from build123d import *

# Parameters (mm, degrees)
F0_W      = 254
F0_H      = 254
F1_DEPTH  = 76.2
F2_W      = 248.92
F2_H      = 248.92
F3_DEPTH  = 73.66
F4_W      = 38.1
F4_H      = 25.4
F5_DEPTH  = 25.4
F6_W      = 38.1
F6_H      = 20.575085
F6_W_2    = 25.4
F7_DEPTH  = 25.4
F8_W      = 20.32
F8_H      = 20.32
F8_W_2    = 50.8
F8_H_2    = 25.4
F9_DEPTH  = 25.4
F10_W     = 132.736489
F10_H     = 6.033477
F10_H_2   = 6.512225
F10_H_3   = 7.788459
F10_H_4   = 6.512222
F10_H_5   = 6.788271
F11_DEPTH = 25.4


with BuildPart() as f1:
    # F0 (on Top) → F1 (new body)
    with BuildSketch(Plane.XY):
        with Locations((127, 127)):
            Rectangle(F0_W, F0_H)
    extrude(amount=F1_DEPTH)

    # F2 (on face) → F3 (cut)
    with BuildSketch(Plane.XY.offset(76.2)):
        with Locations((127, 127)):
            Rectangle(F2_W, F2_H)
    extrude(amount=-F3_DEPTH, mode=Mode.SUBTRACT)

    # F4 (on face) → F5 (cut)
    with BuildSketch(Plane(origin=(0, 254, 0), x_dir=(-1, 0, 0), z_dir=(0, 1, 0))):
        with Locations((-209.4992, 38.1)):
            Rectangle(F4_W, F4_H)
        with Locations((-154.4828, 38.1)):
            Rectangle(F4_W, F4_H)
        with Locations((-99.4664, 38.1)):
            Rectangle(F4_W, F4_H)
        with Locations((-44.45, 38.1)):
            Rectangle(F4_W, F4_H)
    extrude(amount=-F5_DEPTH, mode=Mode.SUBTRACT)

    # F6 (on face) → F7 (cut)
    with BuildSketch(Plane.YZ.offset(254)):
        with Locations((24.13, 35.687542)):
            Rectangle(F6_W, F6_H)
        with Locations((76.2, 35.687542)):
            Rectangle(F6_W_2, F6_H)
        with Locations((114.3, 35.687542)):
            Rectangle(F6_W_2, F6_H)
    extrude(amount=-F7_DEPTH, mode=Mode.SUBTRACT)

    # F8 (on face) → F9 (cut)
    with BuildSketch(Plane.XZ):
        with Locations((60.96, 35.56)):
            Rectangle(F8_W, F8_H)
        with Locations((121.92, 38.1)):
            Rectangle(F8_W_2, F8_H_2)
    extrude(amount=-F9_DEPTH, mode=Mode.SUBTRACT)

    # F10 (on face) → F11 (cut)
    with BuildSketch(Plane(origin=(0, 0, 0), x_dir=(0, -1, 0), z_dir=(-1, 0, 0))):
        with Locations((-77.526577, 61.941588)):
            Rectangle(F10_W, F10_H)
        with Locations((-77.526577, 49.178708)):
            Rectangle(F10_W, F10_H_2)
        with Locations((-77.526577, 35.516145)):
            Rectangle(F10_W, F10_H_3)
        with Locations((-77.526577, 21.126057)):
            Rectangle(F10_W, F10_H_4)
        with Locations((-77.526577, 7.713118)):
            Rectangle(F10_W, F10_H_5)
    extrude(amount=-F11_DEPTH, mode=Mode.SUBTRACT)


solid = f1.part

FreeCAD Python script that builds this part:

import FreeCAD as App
import Part
import Sketcher
Q = App.Units.Quantity

doc = App.newDocument("Part")
body = doc.addObject("PartDesign::Body", "Body")

sketch1 = body.newObject("Sketcher::SketchObject", "Sketch")
sketch1.AttachmentSupport = (doc.getObject("XY_Plane"), [""])
sketch1.MapMode = "FlatFace"
sketch1.addGeometry([
    Part.LineSegment(App.Vector(0, 254, 0), App.Vector(0, 0, 0)),
    Part.LineSegment(App.Vector(0, 0, 0), App.Vector(254, 0, 0)),
    Part.LineSegment(App.Vector(254, 0, 0), App.Vector(254, 254, 0)),
    Part.LineSegment(App.Vector(254, 254, 0), App.Vector(0, 254, 0)),
], False)
sketch1.addConstraint([
    Sketcher.Constraint("Coincident", 0, 2, 1, 1),
    Sketcher.Constraint("Coincident", 1, 2, 2, 1),
    Sketcher.Constraint("Coincident", 2, 2, 3, 1),
    Sketcher.Constraint("Coincident", 3, 2, 0, 1),
    Sketcher.Constraint("Vertical", 0),
    Sketcher.Constraint("Horizontal", 1),
    Sketcher.Constraint("Vertical", 2),
    Sketcher.Constraint("Horizontal", 3),
    Sketcher.Constraint("Coincident", 0, 2, -1, 1),
    Sketcher.Constraint("Equal", 3, 0),
    Sketcher.Constraint("DistanceX", 1, 1, 1, 2, Q("10 in")),
])
pad1 = body.newObject("PartDesign::Pad", "Pad")
pad1.Profile = sketch1
pad1.Length = Q("3 in")

sketch2 = body.newObject("Sketcher::SketchObject", "Sketch001")
sketch2.AttachmentSupport = (doc.getObject("XY_Plane"), [""])
sketch2.MapMode = "FlatFace"
sketch2.AttachmentOffset = App.Placement(App.Vector(0, 0, 3 * 25.4), App.Rotation())
sketch2.addGeometry([
    Part.LineSegment(App.Vector(3, 251, 0), App.Vector(3, 3, 0)),
    Part.LineSegment(App.Vector(3, 3, 0), App.Vector(251, 3, 0)),
    Part.LineSegment(App.Vector(251, 3, 0), App.Vector(251, 251, 0)),
    Part.LineSegment(App.Vector(251, 251, 0), App.Vector(3, 251, 0)),
], False)
sketch2.addConstraint([
    Sketcher.Constraint("Coincident", 0, 2, 1, 1),
    Sketcher.Constraint("Coincident", 1, 2, 2, 1),
    Sketcher.Constraint("Coincident", 2, 2, 3, 1),
    Sketcher.Constraint("Coincident", 3, 2, 0, 1),
    Sketcher.Constraint("Vertical", 0),
    Sketcher.Constraint("Horizontal", 1),
    Sketcher.Constraint("Vertical", 2),
    Sketcher.Constraint("Horizontal", 3),
    Sketcher.Constraint("Equal", 3, 0),
    Sketcher.Constraint("DistanceX", 1, 1, 1, 2, Q("9.8 in")),
    Sketcher.Constraint("DistanceX", -1, 1, 0, 2, Q("0.1 in")),
    Sketcher.Constraint("DistanceY", -1, 1, 0, 2, Q("0.1 in")),
])
pocket1 = body.newObject("PartDesign::Pocket", "Pocket")
pocket1.Profile = sketch2
pocket1.Length = Q("2.9 in")

sketch3 = body.newObject("Sketcher::SketchObject", "Sketch002")
sketch3.AttachmentSupport = (doc.getObject("XZ_Plane"), [""])
sketch3.MapMode = "FlatFace"
sketch3.AttachmentOffset = App.Placement(App.Vector(0, 0, -10 * 25.4), App.Rotation())
sketch3.addGeometry([
    Part.LineSegment(App.Vector(229, 51, 0), App.Vector(229, 25, 0)),
    Part.LineSegment(App.Vector(229, 25, 0), App.Vector(190, 25, 0)),
    Part.LineSegment(App.Vector(190, 25, 0), App.Vector(190, 51, 0)),
    Part.LineSegment(App.Vector(190, 51, 0), App.Vector(229, 51, 0)),
    Part.LineSegment(App.Vector(174, 51, 0), App.Vector(174, 25, 0)),
    Part.LineSegment(App.Vector(174, 25, 0), App.Vector(135, 25, 0)),
    Part.LineSegment(App.Vector(135, 25, 0), App.Vector(135, 51, 0)),
    Part.LineSegment(App.Vector(135, 51, 0), App.Vector(174, 51, 0)),
    Part.LineSegment(App.Vector(119, 51, 0), App.Vector(119, 25, 0)),
    Part.LineSegment(App.Vector(119, 25, 0), App.Vector(80, 25, 0)),
    Part.LineSegment(App.Vector(80, 25, 0), App.Vector(80, 51, 0)),
    Part.LineSegment(App.Vector(80, 51, 0), App.Vector(119, 51, 0)),
    Part.LineSegment(App.Vector(64, 51, 0), App.Vector(64, 25, 0)),
    Part.LineSegment(App.Vector(64, 25, 0), App.Vector(25, 25, 0)),
    Part.LineSegment(App.Vector(25, 25, 0), App.Vector(25, 51, 0)),
    Part.LineSegment(App.Vector(25, 51, 0), App.Vector(64, 51, 0)),
], False)
sketch3.addConstraint([
    Sketcher.Constraint("Coincident", 0, 2, 1, 1),
    Sketcher.Constraint("Coincident", 1, 2, 2, 1),
    Sketcher.Constraint("Coincident", 2, 2, 3, 1),
    Sketcher.Constraint("Coincident", 3, 2, 0, 1),
    Sketcher.Constraint("Coincident", 4, 2, 5, 1),
    Sketcher.Constraint("Coincident", 5, 2, 6, 1),
    Sketcher.Constraint("Coincident", 6, 2, 7, 1),
    Sketcher.Constraint("Coincident", 7, 2, 4, 1),
    Sketcher.Constraint("Coincident", 8, 2, 9, 1),
    Sketcher.Constraint("Coincident", 9, 2, 10, 1),
    Sketcher.Constraint("Coincident", 10, 2, 11, 1),
    Sketcher.Constraint("Coincident", 11, 2, 8, 1),
    Sketcher.Constraint("Coincident", 12, 2, 13, 1),
    Sketcher.Constraint("Coincident", 13, 2, 14, 1),
    Sketcher.Constraint("Coincident", 14, 2, 15, 1),
    Sketcher.Constraint("Coincident", 15, 2, 12, 1),
    Sketcher.Constraint("Vertical", 0),
    Sketcher.Constraint("Horizontal", 1),
    Sketcher.Constraint("Vertical", 2),
    Sketcher.Constraint("Horizontal", 3),
    Sketcher.Constraint("Vertical", 4),
    Sketcher.Constraint("Horizontal", 5),
    Sketcher.Constraint("Vertical", 6),
    Sketcher.Constraint("Horizontal", 7),
    Sketcher.Constraint("Vertical", 8),
    Sketcher.Constraint("Horizontal", 9),
    Sketcher.Constraint("Vertical", 10),
    Sketcher.Constraint("Horizontal", 11),
    Sketcher.Constraint("Vertical", 12),
    Sketcher.Constraint("Horizontal", 13),
    Sketcher.Constraint("Vertical", 14),
    Sketcher.Constraint("Horizontal", 15),
    Sketcher.Constraint("Horizontal", 1, 2, 4, 2),
    Sketcher.Constraint("Horizontal", 3, 2, 6, 2),
    Sketcher.Constraint("Horizontal", 5, 2, 8, 2),
    Sketcher.Constraint("Horizontal", 7, 2, 10, 2),
    Sketcher.Constraint("Horizontal", 9, 2, 12, 2),
    Sketcher.Constraint("Horizontal", 11, 2, 14, 2),
    Sketcher.Constraint("Equal", 3, 5),
    Sketcher.Constraint("Equal", 7, 9),
    Sketcher.Constraint("Equal", 11, 13),
    Sketcher.Constraint("DistanceY", 0, 2, 0, 1, Q("1 in")),
    Sketcher.Constraint("DistanceX", 1, 2, 1, 1, Q("1.5 in")),
    Sketcher.Constraint("DistanceY", -1, 1, 0, 2, Q("1 in")),
    Sketcher.Constraint("DistanceX", -1, 1, 13, 2, Q("1 in")),
    Sketcher.Constraint("DistanceX", -1, 1, 0, 2, Q("8.998 in")),
    Sketcher.Constraint("DistanceX", -1, 1, 4, 2, Q("6.832 in")),
    Sketcher.Constraint("DistanceX", -1, 1, 8, 2, Q("4.666 in")),
])
pocket2 = body.newObject("PartDesign::Pocket", "Pocket001")
pocket2.Profile = sketch3
pocket2.Length = Q("1 in")
pocket2.Reversed = True

sketch4 = body.newObject("Sketcher::SketchObject", "Sketch003")
sketch4.AttachmentSupport = (doc.getObject("YZ_Plane"), [""])
sketch4.MapMode = "FlatFace"
sketch4.AttachmentOffset = App.Placement(App.Vector(0, 0, 10 * 25.4), App.Rotation())
sketch4.addGeometry([
    Part.LineSegment(App.Vector(5, 46, 0), App.Vector(5, 25, 0)),
    Part.LineSegment(App.Vector(5, 25, 0), App.Vector(43, 25, 0)),
    Part.LineSegment(App.Vector(43, 25, 0), App.Vector(43, 46, 0)),
    Part.LineSegment(App.Vector(43, 46, 0), App.Vector(5, 46, 0)),
    Part.LineSegment(App.Vector(64, 46, 0), App.Vector(64, 25, 0)),
    Part.LineSegment(App.Vector(64, 25, 0), App.Vector(89, 25, 0)),
    Part.LineSegment(App.Vector(89, 25, 0), App.Vector(89, 46, 0)),
    Part.LineSegment(App.Vector(89, 46, 0), App.Vector(64, 46, 0)),
    Part.LineSegment(App.Vector(102, 46, 0), App.Vector(102, 25, 0)),
    Part.LineSegment(App.Vector(102, 25, 0), App.Vector(127, 25, 0)),
    Part.LineSegment(App.Vector(127, 25, 0), App.Vector(127, 46, 0)),
    Part.LineSegment(App.Vector(127, 46, 0), App.Vector(102, 46, 0)),
], False)
sketch4.addConstraint([
    Sketcher.Constraint("Coincident", 0, 2, 1, 1),
    Sketcher.Constraint("Coincident", 1, 2, 2, 1),
    Sketcher.Constraint("Coincident", 2, 2, 3, 1),
    Sketcher.Constraint("Coincident", 3, 2, 0, 1),
    Sketcher.Constraint("Coincident", 4, 2, 5, 1),
    Sketcher.Constraint("Coincident", 5, 2, 6, 1),
    Sketcher.Constraint("Coincident", 6, 2, 7, 1),
    Sketcher.Constraint("Coincident", 7, 2, 4, 1),
    Sketcher.Constraint("Coincident", 8, 2, 9, 1),
    Sketcher.Constraint("Coincident", 9, 2, 10, 1),
    Sketcher.Constraint("Coincident", 10, 2, 11, 1),
    Sketcher.Constraint("Coincident", 11, 2, 8, 1),
    Sketcher.Constraint("Vertical", 0),
    Sketcher.Constraint("Horizontal", 1),
    Sketcher.Constraint("Vertical", 2),
    Sketcher.Constraint("Horizontal", 3),
    Sketcher.Constraint("Vertical", 4),
    Sketcher.Constraint("Horizontal", 5),
    Sketcher.Constraint("Vertical", 6),
    Sketcher.Constraint("Horizontal", 7),
    Sketcher.Constraint("Vertical", 8),
    Sketcher.Constraint("Horizontal", 9),
    Sketcher.Constraint("Vertical", 10),
    Sketcher.Constraint("Horizontal", 11),
    Sketcher.Constraint("Horizontal", 1, 2, 4, 2),
    Sketcher.Constraint("Horizontal", 3, 2, 6, 2),
    Sketcher.Constraint("Horizontal", 5, 2, 8, 2),
    Sketcher.Constraint("Horizontal", 7, 2, 10, 2),
    Sketcher.Constraint("Equal", 7, 9),
    Sketcher.Constraint("DistanceX", 5, 1, 5, 2, Q("1 in")),
    Sketcher.Constraint("DistanceX", 1, 1, 1, 2, Q("1.5 in")),
    Sketcher.Constraint("DistanceY", -1, 1, 0, 2, Q("1 in")),
    Sketcher.Constraint("DistanceX", -1, 1, 8, 2, Q("4 in")),
    Sketcher.Constraint("DistanceX", -1, 1, 0, 2, Q("0.2 in")),
    Sketcher.Constraint("DistanceX", -1, 1, 4, 2, Q("2.5 in")),
    Sketcher.Constraint("DistanceY", 0, 2, 0, 1, 20.575085),
])
pocket3 = body.newObject("PartDesign::Pocket", "Pocket002")
pocket3.Profile = sketch4
pocket3.Length = Q("1 in")

sketch5 = body.newObject("Sketcher::SketchObject", "Sketch004")
sketch5.AttachmentSupport = (doc.getObject("XZ_Plane"), [""])
sketch5.MapMode = "FlatFace"
sketch5.addGeometry([
    Part.LineSegment(App.Vector(51, 46, 0), App.Vector(51, 25, 0)),
    Part.LineSegment(App.Vector(51, 25, 0), App.Vector(71, 25, 0)),
    Part.LineSegment(App.Vector(71, 25, 0), App.Vector(71, 46, 0)),
    Part.LineSegment(App.Vector(71, 46, 0), App.Vector(51, 46, 0)),
    Part.LineSegment(App.Vector(97, 51, 0), App.Vector(97, 25, 0)),
    Part.LineSegment(App.Vector(97, 25, 0), App.Vector(147, 25, 0)),
    Part.LineSegment(App.Vector(147, 25, 0), App.Vector(147, 51, 0)),
    Part.LineSegment(App.Vector(147, 51, 0), App.Vector(97, 51, 0)),
], False)
sketch5.addConstraint([
    Sketcher.Constraint("Coincident", 0, 2, 1, 1),
    Sketcher.Constraint("Coincident", 1, 2, 2, 1),
    Sketcher.Constraint("Coincident", 2, 2, 3, 1),
    Sketcher.Constraint("Coincident", 3, 2, 0, 1),
    Sketcher.Constraint("Coincident", 4, 2, 5, 1),
    Sketcher.Constraint("Coincident", 5, 2, 6, 1),
    Sketcher.Constraint("Coincident", 6, 2, 7, 1),
    Sketcher.Constraint("Coincident", 7, 2, 4, 1),
    Sketcher.Constraint("Vertical", 0),
    Sketcher.Constraint("Horizontal", 1),
    Sketcher.Constraint("Vertical", 2),
    Sketcher.Constraint("Horizontal", 3),
    Sketcher.Constraint("Vertical", 4),
    Sketcher.Constraint("Horizontal", 5),
    Sketcher.Constraint("Vertical", 6),
    Sketcher.Constraint("Horizontal", 7),
    Sketcher.Constraint("Horizontal", 1, 2, 4, 2),
    Sketcher.Constraint("Equal", 3, 0),
    Sketcher.Constraint("DistanceX", 5, 1, 5, 2, Q("2 in")),
    Sketcher.Constraint("DistanceY", 4, 2, 4, 1, Q("1 in")),
    Sketcher.Constraint("DistanceX", 1, 1, 1, 2, Q("0.8 in")),
    Sketcher.Constraint("DistanceX", -1, 1, 0, 2, Q("2 in")),
    Sketcher.Constraint("DistanceY", -1, 1, 0, 2, Q("1 in")),
    Sketcher.Constraint("DistanceX", 1, 2, 4, 2, Q("1 in")),
])
pocket4 = body.newObject("PartDesign::Pocket", "Pocket003")
pocket4.Profile = sketch5
pocket4.Length = Q("1 in")

sketch6 = body.newObject("Sketcher::SketchObject", "Sketch005")
sketch6.AttachmentSupport = (doc.getObject("YZ_Plane"), [""])
sketch6.MapMode = "FlatFace"
sketch6.addGeometry([
    Part.LineSegment(App.Vector(144, 65, 0), App.Vector(144, 59, 0)),
    Part.LineSegment(App.Vector(144, 59, 0), App.Vector(11, 59, 0)),
    Part.LineSegment(App.Vector(11, 59, 0), App.Vector(11, 65, 0)),
    Part.LineSegment(App.Vector(11, 65, 0), App.Vector(144, 65, 0)),
    Part.LineSegment(App.Vector(144, 52, 0), App.Vector(144, 46, 0)),
    Part.LineSegment(App.Vector(144, 46, 0), App.Vector(11, 46, 0)),
    Part.LineSegment(App.Vector(11, 46, 0), App.Vector(11, 52, 0)),
    Part.LineSegment(App.Vector(11, 52, 0), App.Vector(144, 52, 0)),
    Part.LineSegment(App.Vector(144, 39, 0), App.Vector(144, 32, 0)),
    Part.LineSegment(App.Vector(144, 32, 0), App.Vector(11, 32, 0)),
    Part.LineSegment(App.Vector(11, 32, 0), App.Vector(11, 39, 0)),
    Part.LineSegment(App.Vector(11, 39, 0), App.Vector(144, 39, 0)),
    Part.LineSegment(App.Vector(144, 24, 0), App.Vector(144, 18, 0)),
    Part.LineSegment(App.Vector(144, 18, 0), App.Vector(11, 18, 0)),
    Part.LineSegment(App.Vector(11, 18, 0), App.Vector(11, 24, 0)),
    Part.LineSegment(App.Vector(11, 24, 0), App.Vector(144, 24, 0)),
    Part.LineSegment(App.Vector(144, 11, 0), App.Vector(144, 4, 0)),
    Part.LineSegment(App.Vector(144, 4, 0), App.Vector(11, 4, 0)),
    Part.LineSegment(App.Vector(11, 4, 0), App.Vector(11, 11, 0)),
    Part.LineSegment(App.Vector(11, 11, 0), App.Vector(144, 11, 0)),
], False)
sketch6.addConstraint([
    Sketcher.Constraint("Coincident", 0, 2, 1, 1),
    Sketcher.Constraint("Coincident", 1, 2, 2, 1),
    Sketcher.Constraint("Coincident", 2, 2, 3, 1),
    Sketcher.Constraint("Coincident", 3, 2, 0, 1),
    Sketcher.Constraint("Coincident", 4, 2, 5, 1),
    Sketcher.Constraint("Coincident", 5, 2, 6, 1),
    Sketcher.Constraint("Coincident", 6, 2, 7, 1),
    Sketcher.Constraint("Coincident", 7, 2, 4, 1),
    Sketcher.Constraint("Coincident", 8, 2, 9, 1),
    Sketcher.Constraint("Coincident", 9, 2, 10, 1),
    Sketcher.Constraint("Coincident", 10, 2, 11, 1),
    Sketcher.Constraint("Coincident", 11, 2, 8, 1),
    Sketcher.Constraint("Coincident", 12, 2, 13, 1),
    Sketcher.Constraint("Coincident", 13, 2, 14, 1),
    Sketcher.Constraint("Coincident", 14, 2, 15, 1),
    Sketcher.Constraint("Coincident", 15, 2, 12, 1),
    Sketcher.Constraint("Coincident", 16, 2, 17, 1),
    Sketcher.Constraint("Coincident", 17, 2, 18, 1),
    Sketcher.Constraint("Coincident", 18, 2, 19, 1),
    Sketcher.Constraint("Coincident", 19, 2, 16, 1),
    Sketcher.Constraint("Vertical", 0),
    Sketcher.Constraint("Horizontal", 1),
    Sketcher.Constraint("Vertical", 2),
    Sketcher.Constraint("Horizontal", 3),
    Sketcher.Constraint("Vertical", 4),
    Sketcher.Constraint("Horizontal", 5),
    Sketcher.Constraint("Vertical", 6),
    Sketcher.Constraint("Horizontal", 7),
    Sketcher.Constraint("Vertical", 8),
    Sketcher.Constraint("Horizontal", 9),
    Sketcher.Constraint("Vertical", 10),
    Sketcher.Constraint("Horizontal", 11),
    Sketcher.Constraint("Vertical", 12),
    Sketcher.Constraint("Horizontal", 13),
    Sketcher.Constraint("Vertical", 14),
    Sketcher.Constraint("Horizontal", 15),
    Sketcher.Constraint("Vertical", 16),
    Sketcher.Constraint("Horizontal", 17),
    Sketcher.Constraint("Vertical", 18),
    Sketcher.Constraint("Horizontal", 19),
    Sketcher.Constraint("Vertical", 3, 2, 4, 2),
    Sketcher.Constraint("Vertical", 2, 2, 5, 2),
    Sketcher.Constraint("Vertical", 7, 2, 8, 2),
    Sketcher.Constraint("Vertical", 6, 2, 9, 2),
    Sketcher.Constraint("Vertical", 11, 2, 12, 2),
    Sketcher.Constraint("Vertical", 10, 2, 13, 2),
    Sketcher.Constraint("Vertical", 15, 2, 16, 2),
    Sketcher.Constraint("Vertical", 14, 2, 17, 2),
    Sketcher.Constraint("DistanceX", 1, 2, 1, 1, 132.736489),
    Sketcher.Constraint("DistanceY", 8, 2, 8, 1, 7.788459),
    Sketcher.Constraint("DistanceY", 16, 2, 16, 1, 6.788271),
    Sketcher.Constraint("DistanceY", 0, 2, 0, 1, 6.033477),
    Sketcher.Constraint("DistanceY", 4, 2, 4, 1, 6.512225),
    Sketcher.Constraint("DistanceY", 12, 2, 12, 1, 6.512222),
    Sketcher.Constraint("DistanceX", -1, 1, 0, 2, 143.894822),
    Sketcher.Constraint("DistanceY", -1, 1, 0, 2, 58.92485),
    Sketcher.Constraint("DistanceY", -1, 1, 6, 2, 52.434821),
    Sketcher.Constraint("DistanceY", -1, 1, 14, 2, 24.382168),
    Sketcher.Constraint("DistanceY", 8, 2, 4, 2, 14.30068),
    Sketcher.Constraint("DistanceY", 18, 2, 10, 2, 28.303121),
])
pocket5 = body.newObject("PartDesign::Pocket", "Pocket004")
pocket5.Profile = sketch6
pocket5.Length = Q("1 in")
pocket5.Reversed = True

doc.recompute()
